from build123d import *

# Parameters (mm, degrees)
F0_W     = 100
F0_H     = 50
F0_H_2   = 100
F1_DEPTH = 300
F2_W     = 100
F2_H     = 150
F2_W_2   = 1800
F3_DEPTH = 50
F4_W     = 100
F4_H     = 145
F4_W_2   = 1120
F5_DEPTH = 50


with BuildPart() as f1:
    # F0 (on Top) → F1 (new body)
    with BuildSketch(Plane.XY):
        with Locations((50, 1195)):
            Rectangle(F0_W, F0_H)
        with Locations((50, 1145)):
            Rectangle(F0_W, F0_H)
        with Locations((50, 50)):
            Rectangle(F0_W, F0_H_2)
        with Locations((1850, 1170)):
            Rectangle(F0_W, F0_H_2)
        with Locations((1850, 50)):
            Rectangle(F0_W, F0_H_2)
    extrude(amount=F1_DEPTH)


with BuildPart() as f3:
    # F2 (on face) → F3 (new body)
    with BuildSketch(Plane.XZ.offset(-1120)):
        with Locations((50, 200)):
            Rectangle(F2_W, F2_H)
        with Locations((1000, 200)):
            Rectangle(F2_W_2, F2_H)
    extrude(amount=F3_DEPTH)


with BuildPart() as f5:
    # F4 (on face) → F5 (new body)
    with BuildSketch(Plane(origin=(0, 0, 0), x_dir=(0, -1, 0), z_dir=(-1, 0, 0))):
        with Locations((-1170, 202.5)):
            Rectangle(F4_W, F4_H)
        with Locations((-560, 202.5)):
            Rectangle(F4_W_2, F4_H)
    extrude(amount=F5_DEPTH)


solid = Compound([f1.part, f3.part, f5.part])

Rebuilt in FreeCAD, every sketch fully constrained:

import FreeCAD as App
import Part
import Sketcher

V = App.Vector


def add_polygon(sketch, points):
    """Adds a closed chain of lines whose ends are joined by coincident constraints."""
    first, n = sketch.GeometryCount, len(points)
    for a, b in zip(points, points[1:] + points[:1]):
        sketch.addGeometry(Part.LineSegment(App.Vector(*a, 0), App.Vector(*b, 0)), False)
    for i in range(n):
        sketch.addConstraint(Sketcher.Constraint("Coincident", first + i, 2, first + (i + 1) % n, 1))

doc = App.newDocument("Part")
body = doc.addObject("PartDesign::Body", "Body")
body.AllowCompound = True

# Sketch on XY plane
sketch1 = body.newObject("Sketcher::SketchObject", "Sketch")
sketch1.AttachmentSupport = (doc.getObject("XY_Plane"), [""])
sketch1.MapMode = "FlatFace"
add_polygon(sketch1, [(0, 1220), (0, 1120), (100, 1120), (100, 1220)])  # lines 0-3
add_polygon(sketch1, [(0, 100), (0, 0), (100, 0), (100, 100)])  # lines 4-7
add_polygon(sketch1, [(1800, 1220), (1800, 1120), (1900, 1120), (1900, 1220)])  # lines 8-11
add_polygon(sketch1, [(1800, 100), (1800, 0), (1900, 0), (1900, 100)])  # lines 12-15
sketch1.addConstraint(Sketcher.Constraint("Vertical", 0))
sketch1.addConstraint(Sketcher.Constraint("Horizontal", 1))
sketch1.addConstraint(Sketcher.Constraint("Vertical", 2))
sketch1.addConstraint(Sketcher.Constraint("Horizontal", 3))
sketch1.addConstraint(Sketcher.Constraint("Vertical", 4))
sketch1.addConstraint(Sketcher.Constraint("Horizontal", 5))
sketch1.addConstraint(Sketcher.Constraint("Vertical", 6))
sketch1.addConstraint(Sketcher.Constraint("Horizontal", 7))
sketch1.addConstraint(Sketcher.Constraint("Vertical", 8))
sketch1.addConstraint(Sketcher.Constraint("Horizontal", 9))
sketch1.addConstraint(Sketcher.Constraint("Vertical", 10))
sketch1.addConstraint(Sketcher.Constraint("Horizontal", 11))
sketch1.addConstraint(Sketcher.Constraint("Vertical", 12))
sketch1.addConstraint(Sketcher.Constraint("Horizontal", 13))
sketch1.addConstraint(Sketcher.Constraint("Vertical", 14))
sketch1.addConstraint(Sketcher.Constraint("Horizontal", 15))
sketch1.addConstraint(Sketcher.Constraint("Coincident", 4, 2, -1, 1))
sketch1.addConstraint(Sketcher.Constraint("PointOnObject", 0, 2, -2))
sketch1.addConstraint(Sketcher.Constraint("PointOnObject", 12, 2, -1))
sketch1.addConstraint(Sketcher.Constraint("Horizontal", 1, 2, 8, 2))
sketch1.addConstraint(Sketcher.Constraint("Horizontal", 3, 2, 10, 2))
sketch1.addConstraint(Sketcher.Constraint("Horizontal", 7, 2, 14, 2))
sketch1.addConstraint(Sketcher.Constraint("Vertical", 2, 2, 5, 2))
sketch1.addConstraint(Sketcher.Constraint("Vertical", 11, 2, 12, 2))
sketch1.addConstraint(Sketcher.Constraint("Vertical", 10, 2, 13, 2))
sketch1.addConstraint(Sketcher.Constraint("Equal", 7, 9))
sketch1.addConstraint(Sketcher.Constraint("Equal", 15, 0))
sketch1.addConstraint(Sketcher.Constraint("Equal", 2, 4))
sketch1.addConstraint(Sketcher.Constraint("DistanceX", 1, 1, 1, 2, 100.0))
sketch1.addConstraint(Sketcher.Constraint("DistanceY", -1, 1, 0, 2, 1120.0))
sketch1.addConstraint(Sketcher.Constraint("DistanceX", -1, 1, 8, 2, 1800.0))
pad1 = body.newObject("PartDesign::Pad", "Pad")
pad1.Profile = sketch1
pad1.Length = 300
body2 = doc.addObject("PartDesign::Body", "Body001")

# Sketch on XZ plane
sketch2 = body2.newObject("Sketcher::SketchObject", "Sketch001")
sketch2.AttachmentSupport = (doc.getObject("XZ_Plane001"), [""])
sketch2.MapMode = "FlatFace"
sketch2.AttachmentOffset = App.Placement(V(0, 0, -1120), App.Rotation())
add_polygon(sketch2, [(0, 275), (0, 125), (1900, 125), (1900, 275)])  # lines 0-3
sketch2.addConstraint(Sketcher.Constraint("Vertical", 0))
sketch2.addConstraint(Sketcher.Constraint("Horizontal", 1))
sketch2.addConstraint(Sketcher.Constraint("Vertical", 2))
sketch2.addConstraint(Sketcher.Constraint("Horizontal", 3))
sketch2.addConstraint(Sketcher.Constraint("PointOnObject", 0, 2, -2))
sketch2.addConstraint(Sketcher.Constraint("DistanceX", 1, 1, 1, 2, 1900.0))
sketch2.addConstraint(Sketcher.Constraint("DistanceY", 0, 2, 0, 1, 150.0))
sketch2.addConstraint(Sketcher.Constraint("DistanceY", -1, 1, 0, 2, 125.0))
pad2 = body2.newObject("PartDesign::Pad", "Pad001")
pad2.Profile = sketch2
pad2.Length = 50
body3 = doc.addObject("PartDesign::Body", "Body002")

# Sketch on YZ plane
sketch3 = body3.newObject("Sketcher::SketchObject", "Sketch002")
sketch3.AttachmentSupport = (doc.getObject("YZ_Plane002"), [""])
sketch3.MapMode = "FlatFace"
add_polygon(sketch3, [(1220, 275), (1220, 130), (0, 130), (0, 275)])  # lines 0-3
sketch3.addConstraint(Sketcher.Constraint("Vertical", 0))
sketch3.addConstraint(Sketcher.Constraint("Horizontal", 1))
sketch3.addConstraint(Sketcher.Constraint("Vertical", 2))
sketch3.addConstraint(Sketcher.Constraint("Horizontal", 3))
sketch3.addConstraint(Sketcher.Constraint("PointOnObject", 1, 2, -2))
sketch3.addConstraint(Sketcher.Constraint("DistanceX", 1, 2, 1, 1, 1220.0))
sketch3.addConstraint(Sketcher.Constraint("DistanceY", 0, 2, 0, 1, 145.0))
sketch3.addConstraint(Sketcher.Constraint("DistanceY", -1, 1, 0, 2, 130.0))
pad3 = body3.newObject("PartDesign::Pad", "Pad002")
pad3.Profile = sketch3
pad3.Length = 50
pad3.Reversed = True

doc.recompute()
